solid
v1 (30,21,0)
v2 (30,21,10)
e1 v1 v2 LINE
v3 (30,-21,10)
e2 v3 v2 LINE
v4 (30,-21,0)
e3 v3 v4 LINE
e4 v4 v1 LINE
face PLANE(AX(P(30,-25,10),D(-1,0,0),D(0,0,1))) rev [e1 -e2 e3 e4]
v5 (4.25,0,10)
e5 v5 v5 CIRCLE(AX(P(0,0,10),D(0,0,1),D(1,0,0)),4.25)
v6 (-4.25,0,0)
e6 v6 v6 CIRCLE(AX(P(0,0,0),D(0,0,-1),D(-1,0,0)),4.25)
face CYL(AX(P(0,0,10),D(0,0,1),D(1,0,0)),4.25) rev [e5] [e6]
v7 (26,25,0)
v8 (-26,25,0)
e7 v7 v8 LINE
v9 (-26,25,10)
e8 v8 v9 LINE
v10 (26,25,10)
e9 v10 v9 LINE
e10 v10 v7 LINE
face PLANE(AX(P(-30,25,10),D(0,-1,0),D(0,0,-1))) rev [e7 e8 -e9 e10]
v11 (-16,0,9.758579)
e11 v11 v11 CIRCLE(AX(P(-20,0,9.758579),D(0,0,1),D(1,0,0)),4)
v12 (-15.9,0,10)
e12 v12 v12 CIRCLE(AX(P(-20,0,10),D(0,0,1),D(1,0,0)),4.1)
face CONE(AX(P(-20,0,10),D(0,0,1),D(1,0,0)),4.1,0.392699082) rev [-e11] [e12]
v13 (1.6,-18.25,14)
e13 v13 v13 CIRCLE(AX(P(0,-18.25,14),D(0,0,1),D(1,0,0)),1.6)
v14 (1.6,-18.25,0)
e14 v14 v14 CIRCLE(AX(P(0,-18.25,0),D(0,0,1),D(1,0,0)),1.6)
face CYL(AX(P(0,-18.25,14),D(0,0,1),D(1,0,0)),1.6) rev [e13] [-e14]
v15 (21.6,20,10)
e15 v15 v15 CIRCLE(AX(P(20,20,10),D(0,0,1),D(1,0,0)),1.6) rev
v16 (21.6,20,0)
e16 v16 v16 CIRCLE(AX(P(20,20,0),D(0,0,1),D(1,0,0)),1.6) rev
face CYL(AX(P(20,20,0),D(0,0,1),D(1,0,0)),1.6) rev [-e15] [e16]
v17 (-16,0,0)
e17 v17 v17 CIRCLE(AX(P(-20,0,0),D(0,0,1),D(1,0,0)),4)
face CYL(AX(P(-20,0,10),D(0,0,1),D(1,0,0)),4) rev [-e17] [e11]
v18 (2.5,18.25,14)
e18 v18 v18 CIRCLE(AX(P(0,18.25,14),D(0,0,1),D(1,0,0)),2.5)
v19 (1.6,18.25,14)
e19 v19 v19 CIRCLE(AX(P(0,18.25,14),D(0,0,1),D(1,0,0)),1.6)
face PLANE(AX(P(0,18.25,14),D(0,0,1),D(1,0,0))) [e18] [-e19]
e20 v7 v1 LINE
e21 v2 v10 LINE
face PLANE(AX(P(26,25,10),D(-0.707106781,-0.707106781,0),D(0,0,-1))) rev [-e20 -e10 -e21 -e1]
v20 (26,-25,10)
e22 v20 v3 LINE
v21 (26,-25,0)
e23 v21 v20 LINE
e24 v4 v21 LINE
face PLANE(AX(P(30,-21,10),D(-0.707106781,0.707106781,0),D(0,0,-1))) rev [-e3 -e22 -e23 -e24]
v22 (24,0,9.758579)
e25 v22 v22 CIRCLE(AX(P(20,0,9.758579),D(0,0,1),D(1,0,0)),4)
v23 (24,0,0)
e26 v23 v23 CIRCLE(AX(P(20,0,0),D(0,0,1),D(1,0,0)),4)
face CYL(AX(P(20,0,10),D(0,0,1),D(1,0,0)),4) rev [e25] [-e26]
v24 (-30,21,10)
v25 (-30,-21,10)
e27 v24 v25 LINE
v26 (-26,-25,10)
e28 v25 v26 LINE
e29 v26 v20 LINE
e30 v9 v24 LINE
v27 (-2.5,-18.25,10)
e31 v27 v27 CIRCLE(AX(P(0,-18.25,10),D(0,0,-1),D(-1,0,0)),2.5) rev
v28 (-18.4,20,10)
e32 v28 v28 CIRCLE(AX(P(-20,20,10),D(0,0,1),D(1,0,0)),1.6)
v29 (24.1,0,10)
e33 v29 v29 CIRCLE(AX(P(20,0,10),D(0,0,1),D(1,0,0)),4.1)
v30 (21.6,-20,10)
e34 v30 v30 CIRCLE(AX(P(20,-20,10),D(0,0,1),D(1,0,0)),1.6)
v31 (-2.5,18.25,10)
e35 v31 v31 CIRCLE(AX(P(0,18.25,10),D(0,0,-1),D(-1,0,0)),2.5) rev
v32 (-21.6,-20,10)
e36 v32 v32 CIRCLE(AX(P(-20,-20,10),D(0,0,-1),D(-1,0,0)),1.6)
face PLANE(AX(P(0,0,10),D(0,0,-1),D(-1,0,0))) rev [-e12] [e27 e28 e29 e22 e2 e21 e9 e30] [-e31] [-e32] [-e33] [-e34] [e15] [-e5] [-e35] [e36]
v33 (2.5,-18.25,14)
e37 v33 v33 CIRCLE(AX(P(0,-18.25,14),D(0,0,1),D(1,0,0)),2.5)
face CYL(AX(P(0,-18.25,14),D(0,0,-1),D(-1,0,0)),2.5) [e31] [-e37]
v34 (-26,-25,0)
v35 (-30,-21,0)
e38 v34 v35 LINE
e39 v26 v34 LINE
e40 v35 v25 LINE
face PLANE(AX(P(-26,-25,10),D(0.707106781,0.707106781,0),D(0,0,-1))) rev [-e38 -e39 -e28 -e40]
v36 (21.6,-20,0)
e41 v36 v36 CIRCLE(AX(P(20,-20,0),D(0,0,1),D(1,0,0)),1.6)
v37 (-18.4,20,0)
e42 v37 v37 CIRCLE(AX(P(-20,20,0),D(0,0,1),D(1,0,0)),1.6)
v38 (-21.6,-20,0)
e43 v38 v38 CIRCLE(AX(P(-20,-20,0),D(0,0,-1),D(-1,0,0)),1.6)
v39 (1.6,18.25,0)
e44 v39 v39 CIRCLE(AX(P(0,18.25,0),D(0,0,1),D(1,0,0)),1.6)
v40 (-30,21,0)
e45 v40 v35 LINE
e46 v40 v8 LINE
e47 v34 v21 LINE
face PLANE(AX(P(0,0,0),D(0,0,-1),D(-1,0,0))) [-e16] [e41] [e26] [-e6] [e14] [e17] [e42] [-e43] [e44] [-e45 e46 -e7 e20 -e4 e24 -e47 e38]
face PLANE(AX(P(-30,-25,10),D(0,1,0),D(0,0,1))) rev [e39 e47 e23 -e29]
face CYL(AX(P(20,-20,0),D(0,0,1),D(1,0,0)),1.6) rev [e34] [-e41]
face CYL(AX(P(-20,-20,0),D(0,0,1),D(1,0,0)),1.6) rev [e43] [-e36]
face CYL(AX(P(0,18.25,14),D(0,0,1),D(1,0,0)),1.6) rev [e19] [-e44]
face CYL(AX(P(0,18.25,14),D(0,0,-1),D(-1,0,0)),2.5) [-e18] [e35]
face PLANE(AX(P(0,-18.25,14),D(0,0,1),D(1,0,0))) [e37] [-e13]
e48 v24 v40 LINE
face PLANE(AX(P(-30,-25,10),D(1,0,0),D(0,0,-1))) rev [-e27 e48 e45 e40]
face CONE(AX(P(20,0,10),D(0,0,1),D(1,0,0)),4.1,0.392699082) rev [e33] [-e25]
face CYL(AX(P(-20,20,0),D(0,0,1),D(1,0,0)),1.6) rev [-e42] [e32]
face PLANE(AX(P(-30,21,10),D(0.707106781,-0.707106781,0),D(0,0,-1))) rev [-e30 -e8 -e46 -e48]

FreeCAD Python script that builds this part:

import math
import FreeCAD as App
import Part
import Sketcher


def edges_at(feature, points):
    """Names of the edges that pass closest to the given points."""
    edges = feature.Shape.Edges
    near = lambda p: min(range(len(edges)), key=lambda i: edges[i].distToShape(Part.Vertex(*p))[0])
    return sorted({f"Edge{near(p) + 1}" for p in points})


def add_polygon(sketch, points):
    """Adds a closed chain of lines whose ends are joined by coincident constraints."""
    first, n = sketch.GeometryCount, len(points)
    for a, b in zip(points, points[1:] + points[:1]):
        sketch.addGeometry(Part.LineSegment(App.Vector(*a, 0), App.Vector(*b, 0)), False)
    for i in range(n):
        sketch.addConstraint(Sketcher.Constraint("Coincident", first + i, 2, first + (i + 1) % n, 1))

doc = App.newDocument("Part")
body = doc.addObject("PartDesign::Body", "Body")

sketch1 = body.newObject("Sketcher::SketchObject", "Sketch")
sketch1.AttachmentSupport = (doc.getObject("XY_Plane"), [""])
sketch1.MapMode = "FlatFace"
add_polygon(sketch1, [(-30, 25), (-30, -25), (30, -25), (30, 25)])
sketch1.addConstraint(Sketcher.Constraint("Vertical", 0))
sketch1.addConstraint(Sketcher.Constraint("Horizontal", 1))
sketch1.addConstraint(Sketcher.Constraint("Vertical", 2))
sketch1.addConstraint(Sketcher.Constraint("Horizontal", 3))
sketch1.addConstraint(Sketcher.Constraint("Symmetric", 0, 2, 2, 2, -1, 1))
sketch1.addConstraint(Sketcher.Constraint("DistanceX", 1, 1, 1, 2, 60.0))
sketch1.addConstraint(Sketcher.Constraint("DistanceY", 0, 2, 0, 1, 50.0))
pad1 = body.newObject("PartDesign::Pad", "Pad")
pad1.Profile = sketch1
pad1.Length = 10

sketch2 = body.newObject("Sketcher::SketchObject", "Sketch001")
sketch2.AttachmentSupport = (doc.getObject("XY_Plane"), [""])
sketch2.MapMode = "FlatFace"
sketch2.AttachmentOffset = App.Placement(App.Vector(0, 0, 10), App.Rotation())
sketch2.addGeometry(Part.Circle(App.Vector(0, 0, 0), App.Vector(0, 0, 1), 4.2), False)
sketch2.addConstraint(Sketcher.Constraint("Coincident", 0, 3, -1, 1))
sketch2.addConstraint(Sketcher.Constraint("Diameter", 0, 8.5))
doc.recompute()
hole = body.newObject("PartDesign::Hole", "Hole")
hole.Profile = sketch2
hole.ThreadType = "None"
hole.Diameter = 8.5
hole.DepthType = "Dimension"
hole.Depth = 20
hole.DrillPoint = "Flat"

sketch3 = body.newObject("Sketcher::SketchObject", "Sketch002")
sketch3.AttachmentSupport = (doc.getObject("XY_Plane"), [""])
sketch3.MapMode = "FlatFace"
sketch3.AttachmentOffset = App.Placement(App.Vector(0, 0, 10), App.Rotation())
sketch3.addGeometry(Part.Circle(App.Vector(20, 0, 0), App.Vector(0, 0, 1), 4), False)
sketch3.addGeometry(Part.Circle(App.Vector(-20, 0, 0), App.Vector(0, 0, 1), 4), False)
sketch3.addConstraint(Sketcher.Constraint("Equal", 0, 1))
sketch3.addConstraint(Sketcher.Constraint("Symmetric", 0, 3, 1, 3, -1, 1))
sketch3.addConstraint(Sketcher.Constraint("PointOnObject", 0, 3, -1))
sketch3.addConstraint(Sketcher.Constraint("Diameter", 0, 8.0))
sketch3.addConstraint(Sketcher.Constraint("DistanceX", -1, 1, 0, 3, 20.0))
doc.recompute()
hole2 = body.newObject("PartDesign::Hole", "Hole001")
hole2.Profile = sketch3
hole2.ThreadType = "None"
hole2.Diameter = 8
hole2.DepthType = "ThroughAll"
hole2.HoleCutType = "Countersink"
hole2.HoleCutDiameter = 8.2
hole2.HoleCutCountersinkAngle = 45

sketch4 = body.newObject("Sketcher::SketchObject", "Sketch003")
sketch4.AttachmentSupport = (doc.getObject("XY_Plane"), [""])
sketch4.MapMode = "FlatFace"
sketch4.AttachmentOffset = App.Placement(App.Vector(0, 0, 10), App.Rotation())
sketch4.addGeometry(Part.Circle(App.Vector(0, 18.2, 0), App.Vector(0, 0, 1), 2.5), False)
sketch4.addGeometry(Part.Circle(App.Vector(0, -18.2, 0), App.Vector(0, 0, 1), 2.5), False)
sketch4.addConstraint(Sketcher.Constraint("Equal", 0, 1))
sketch4.addConstraint(Sketcher.Constraint("Symmetric", 0, 3, 1, 3, -1, 1))
sketch4.addConstraint(Sketcher.Constraint("PointOnObject", 0, 3, -2))
sketch4.addConstraint(Sketcher.Constraint("Diameter", 0, 5.0))
sketch4.addConstraint(Sketcher.Constraint("DistanceY", 1, 3, 0, 3, 36.5))
pad2 = body.newObject("PartDesign::Pad", "Pad001")
pad2.Profile = sketch4
pad2.Length = 4

sketch5 = body.newObject("Sketcher::SketchObject", "Sketch004")
sketch5.AttachmentSupport = (doc.getObject("XY_Plane"), [""])
sketch5.MapMode = "FlatFace"
sketch5.AttachmentOffset = App.Placement(App.Vector(0, 0, 14), App.Rotation())
sketch5.addGeometry(Part.Circle(App.Vector(0, 18.2, 0), App.Vector(0, 0, 1), 1.6), False)
sketch5.addGeometry(Part.Circle(App.Vector(0, -18.2, 0), App.Vector(0, 0, 1), 1.6), False)
sketch5.addConstraint(Sketcher.Constraint("Equal", 0, 1))
sketch5.addConstraint(Sketcher.Constraint("Symmetric", 0, 3, 1, 3, -1, 1))
sketch5.addConstraint(Sketcher.Constraint("PointOnObject", 0, 3, -2))
sketch5.addConstraint(Sketcher.Constraint("Diameter", 0, 3.2))
sketch5.addConstraint(Sketcher.Constraint("DistanceY", 1, 3, 0, 3, 36.5))
doc.recompute()
hole3 = body.newObject("PartDesign::Hole", "Hole002")
hole3.Profile = sketch5
hole3.ThreadType = "None"
hole3.Diameter = 3.2
hole3.DepthType = "ThroughAll"
doc.recompute()

chamfer = body.newObject("PartDesign::Chamfer", "Chamfer")
chamfer.Base = (hole3, edges_at(hole3, [
    (30, -25, 5),
    (-30, -25, 5),
    (-30, 25, 5),
    (30, 25, 5),
]))
chamfer.Size = 4

sketch6 = body.newObject("Sketcher::SketchObject", "Sketch005")
sketch6.AttachmentSupport = (doc.getObject("XY_Plane"), [""])
sketch6.MapMode = "FlatFace"
sketch6.AttachmentOffset = App.Placement(App.Vector(0, 0, 10), App.Rotation())
sketch6.addGeometry(Part.ArcOfCircle(Part.Circle(App.Vector(-20, 20, 0), App.Vector(0, 0, 1), 1.6), math.radians(135), math.radians(315)), False)
sketch6.addGeometry(Part.ArcOfCircle(Part.Circle(App.Vector(-20, 20, 0), App.Vector(0, 0, 1), 1.6), math.radians(-45), math.radians(0)), False)
sketch6.addGeometry(Part.ArcOfCircle(Part.Circle(App.Vector(-20, 20, 0), App.Vector(0, 0, 1), 1.6), math.radians(0), math.radians(135)), False)
sketch6.addGeometry(Part.Circle(App.Vector(20, 20, 0), App.Vector(0, 0, 1), 1.6), False)
sketch6.addGeometry(Part.Circle(App.Vector(20, -20, 0), App.Vector(0, 0, 1), 1.6), False)
sketch6.addGeometry(Part.Circle(App.Vector(-20, -20, 0), App.Vector(0, 0, 1), 1.6), False)
sketch6.addConstraint(Sketcher.Constraint("Tangent", 0, 2, 1, 1))
sketch6.addConstraint(Sketcher.Constraint("Tangent", 1, 2, 2, 1))
sketch6.addConstraint(Sketcher.Constraint("Tangent", 2, 2, 0, 1))
sketch6.addConstraint(Sketcher.Constraint("Equal", 2, 3))
sketch6.addConstraint(Sketcher.Constraint("Equal", 3, 4))
sketch6.addConstraint(Sketcher.Constraint("Equal", 4, 5))
sketch6.addConstraint(Sketcher.Constraint("Symmetric", 0, 3, 4, 3, -1, 1))
sketch6.addConstraint(Sketcher.Constraint("Symmetric", 3, 3, 5, 3, -1, 1))
sketch6.addConstraint(Sketcher.Constraint("Symmetric", 0, 3, 3, 3, -2))
sketch6.addConstraint(Sketcher.Constraint("Horizontal", 3, 3, 1, 2))
sketch6.addConstraint(Sketcher.Constraint("Diameter", 3, 3.2))
sketch6.addConstraint(Sketcher.Constraint("DistanceX", 0, 3, -1, 1, 20.0))
sketch6.addConstraint(Sketcher.Constraint("DistanceY", -1, 1, 0, 3, 20.0))
sketch6.addConstraint(Sketcher.Constraint("DistanceX", 0, 2, -1, 1, 18.868629))
sketch6.addConstraint(Sketcher.Constraint("DistanceX", 2, 2, -1, 1, 21.131371))
pocket1 = body.newObject("PartDesign::Pocket", "Pocket")
pocket1.Profile = sketch6
pocket1.Type = "ThroughAll"

doc.recompute()
